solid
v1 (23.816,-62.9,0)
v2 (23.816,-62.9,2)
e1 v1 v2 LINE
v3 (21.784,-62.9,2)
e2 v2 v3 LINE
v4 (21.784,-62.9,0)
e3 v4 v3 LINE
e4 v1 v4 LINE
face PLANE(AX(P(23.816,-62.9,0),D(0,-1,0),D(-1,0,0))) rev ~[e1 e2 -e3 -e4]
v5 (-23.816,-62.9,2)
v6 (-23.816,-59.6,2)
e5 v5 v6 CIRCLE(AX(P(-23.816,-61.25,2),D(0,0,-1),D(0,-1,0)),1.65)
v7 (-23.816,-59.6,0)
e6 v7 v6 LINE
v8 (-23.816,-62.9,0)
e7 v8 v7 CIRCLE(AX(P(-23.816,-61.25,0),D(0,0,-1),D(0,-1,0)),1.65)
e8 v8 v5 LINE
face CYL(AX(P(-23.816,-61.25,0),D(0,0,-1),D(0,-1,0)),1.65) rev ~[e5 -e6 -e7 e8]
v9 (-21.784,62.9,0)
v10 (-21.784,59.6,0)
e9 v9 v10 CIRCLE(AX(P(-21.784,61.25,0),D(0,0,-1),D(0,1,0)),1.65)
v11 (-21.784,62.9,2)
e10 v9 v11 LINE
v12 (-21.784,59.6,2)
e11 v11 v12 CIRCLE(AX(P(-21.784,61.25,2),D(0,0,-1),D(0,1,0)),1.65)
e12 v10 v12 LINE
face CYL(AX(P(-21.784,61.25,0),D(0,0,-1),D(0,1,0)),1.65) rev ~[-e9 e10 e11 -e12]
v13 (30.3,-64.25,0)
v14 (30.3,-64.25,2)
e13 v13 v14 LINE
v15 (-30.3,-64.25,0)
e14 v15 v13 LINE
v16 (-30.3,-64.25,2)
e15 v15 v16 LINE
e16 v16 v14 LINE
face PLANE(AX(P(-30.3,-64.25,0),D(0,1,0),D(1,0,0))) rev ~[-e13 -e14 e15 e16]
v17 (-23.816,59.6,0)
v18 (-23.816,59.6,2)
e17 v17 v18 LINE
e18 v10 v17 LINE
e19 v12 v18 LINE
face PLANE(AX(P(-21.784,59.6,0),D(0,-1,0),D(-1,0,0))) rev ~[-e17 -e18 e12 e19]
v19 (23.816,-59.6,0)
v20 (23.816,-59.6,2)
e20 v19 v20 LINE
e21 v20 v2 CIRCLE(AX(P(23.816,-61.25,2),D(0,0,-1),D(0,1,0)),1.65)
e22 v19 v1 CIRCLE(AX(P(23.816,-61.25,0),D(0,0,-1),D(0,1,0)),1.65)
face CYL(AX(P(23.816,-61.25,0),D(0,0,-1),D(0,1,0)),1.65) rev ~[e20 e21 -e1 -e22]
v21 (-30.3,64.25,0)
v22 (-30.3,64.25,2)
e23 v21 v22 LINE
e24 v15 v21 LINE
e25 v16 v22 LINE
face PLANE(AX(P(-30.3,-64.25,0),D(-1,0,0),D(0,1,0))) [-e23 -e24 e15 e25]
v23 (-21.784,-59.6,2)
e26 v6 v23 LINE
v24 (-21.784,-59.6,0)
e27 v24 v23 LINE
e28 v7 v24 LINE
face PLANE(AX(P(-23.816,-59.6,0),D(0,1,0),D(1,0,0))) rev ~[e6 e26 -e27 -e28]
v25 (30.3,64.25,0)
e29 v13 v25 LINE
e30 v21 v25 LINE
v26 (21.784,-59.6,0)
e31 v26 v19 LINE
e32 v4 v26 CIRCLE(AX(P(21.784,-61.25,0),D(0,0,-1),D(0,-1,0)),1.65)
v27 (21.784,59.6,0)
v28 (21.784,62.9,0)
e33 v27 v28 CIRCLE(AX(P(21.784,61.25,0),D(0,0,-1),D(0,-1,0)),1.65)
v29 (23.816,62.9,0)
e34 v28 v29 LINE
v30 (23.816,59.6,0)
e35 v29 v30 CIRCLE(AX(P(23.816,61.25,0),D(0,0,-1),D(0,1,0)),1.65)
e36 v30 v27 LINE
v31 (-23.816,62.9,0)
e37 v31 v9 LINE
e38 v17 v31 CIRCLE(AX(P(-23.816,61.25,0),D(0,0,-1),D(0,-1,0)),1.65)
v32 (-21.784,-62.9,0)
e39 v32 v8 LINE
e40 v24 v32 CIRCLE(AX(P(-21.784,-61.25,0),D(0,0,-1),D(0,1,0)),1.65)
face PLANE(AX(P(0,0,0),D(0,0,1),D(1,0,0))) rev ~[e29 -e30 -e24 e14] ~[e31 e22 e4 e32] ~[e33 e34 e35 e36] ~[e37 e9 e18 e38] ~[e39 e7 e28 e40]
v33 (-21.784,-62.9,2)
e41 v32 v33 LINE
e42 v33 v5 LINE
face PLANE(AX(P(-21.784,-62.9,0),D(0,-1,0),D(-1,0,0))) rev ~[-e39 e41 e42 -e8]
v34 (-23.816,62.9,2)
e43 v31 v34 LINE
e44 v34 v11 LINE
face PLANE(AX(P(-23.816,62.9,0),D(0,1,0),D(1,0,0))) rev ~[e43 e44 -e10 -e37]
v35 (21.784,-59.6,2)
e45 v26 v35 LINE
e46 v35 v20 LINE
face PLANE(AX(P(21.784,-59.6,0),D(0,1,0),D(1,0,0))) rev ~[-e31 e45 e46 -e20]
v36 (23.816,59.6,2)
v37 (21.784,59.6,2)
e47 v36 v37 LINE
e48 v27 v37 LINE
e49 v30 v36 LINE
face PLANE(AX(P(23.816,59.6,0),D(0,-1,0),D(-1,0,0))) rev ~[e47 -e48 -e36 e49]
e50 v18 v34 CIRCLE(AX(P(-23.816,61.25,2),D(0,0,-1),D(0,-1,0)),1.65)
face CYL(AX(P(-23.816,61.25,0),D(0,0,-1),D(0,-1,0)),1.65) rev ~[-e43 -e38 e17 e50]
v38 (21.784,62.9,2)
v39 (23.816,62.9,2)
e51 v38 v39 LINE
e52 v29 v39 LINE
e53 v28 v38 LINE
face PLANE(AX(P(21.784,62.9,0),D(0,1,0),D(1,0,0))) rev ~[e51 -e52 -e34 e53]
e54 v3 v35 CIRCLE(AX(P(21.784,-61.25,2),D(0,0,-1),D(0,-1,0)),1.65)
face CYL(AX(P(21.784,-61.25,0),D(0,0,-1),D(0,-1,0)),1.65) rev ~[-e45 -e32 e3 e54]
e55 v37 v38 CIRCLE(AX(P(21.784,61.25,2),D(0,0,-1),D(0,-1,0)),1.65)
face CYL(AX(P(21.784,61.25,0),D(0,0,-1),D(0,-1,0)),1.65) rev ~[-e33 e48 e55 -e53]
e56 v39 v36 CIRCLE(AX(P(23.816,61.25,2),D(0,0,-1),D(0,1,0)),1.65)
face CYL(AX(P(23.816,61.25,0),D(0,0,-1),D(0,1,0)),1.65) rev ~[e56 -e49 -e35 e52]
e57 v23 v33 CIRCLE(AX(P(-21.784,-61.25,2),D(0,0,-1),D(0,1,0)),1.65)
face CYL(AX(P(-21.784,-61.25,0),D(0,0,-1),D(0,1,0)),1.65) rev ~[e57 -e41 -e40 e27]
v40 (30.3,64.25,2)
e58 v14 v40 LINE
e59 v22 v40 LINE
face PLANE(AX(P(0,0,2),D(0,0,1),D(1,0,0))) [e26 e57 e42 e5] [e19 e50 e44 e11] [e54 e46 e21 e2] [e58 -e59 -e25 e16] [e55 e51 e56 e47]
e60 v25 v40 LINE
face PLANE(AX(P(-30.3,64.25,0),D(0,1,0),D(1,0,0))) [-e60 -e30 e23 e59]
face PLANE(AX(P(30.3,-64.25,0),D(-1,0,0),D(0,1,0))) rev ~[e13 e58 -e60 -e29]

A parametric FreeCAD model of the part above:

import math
import FreeCAD as App
import Part
import Sketcher


def add_polygon(sketch, points):
    """Adds a closed chain of lines whose ends are joined by coincident constraints."""
    first, n = sketch.GeometryCount, len(points)
    for a, b in zip(points, points[1:] + points[:1]):
        sketch.addGeometry(Part.LineSegment(App.Vector(*a, 0), App.Vector(*b, 0)), False)
    for i in range(n):
        sketch.addConstraint(Sketcher.Constraint("Coincident", first + i, 2, first + (i + 1) % n, 1))

doc = App.newDocument("Part")
body = doc.addObject("PartDesign::Body", "Body")

# Sketch on XY plane
sketch1 = body.newObject("Sketcher::SketchObject", "Sketch")
sketch1.AttachmentSupport = (doc.getObject("XY_Plane"), [""])
sketch1.MapMode = "FlatFace"
add_polygon(sketch1, [(-30.3, 64.25), (-30.3, -64.25), (30.3, -64.25), (30.3, 64.25)])  # lines 0-3
sketch1.addGeometry(Part.ArcOfCircle(Part.Circle(App.Vector(-23.816, -61.25, 0), App.Vector(0, 0, 1), 1.65), math.radians(90), math.radians(270)), False)  # 4
sketch1.addGeometry(Part.LineSegment(App.Vector(-23.816, -59.6, 0), App.Vector(-21.784, -59.6, 0)), False)  # 5
sketch1.addGeometry(Part.ArcOfCircle(Part.Circle(App.Vector(-21.784, -61.25, 0), App.Vector(0, 0, 1), 1.65), math.radians(-90), math.radians(90)), False)  # 6
sketch1.addGeometry(Part.LineSegment(App.Vector(-21.784, -62.9, 0), App.Vector(-23.816, -62.9, 0)), False)  # 7
sketch1.addGeometry(Part.ArcOfCircle(Part.Circle(App.Vector(21.784, -61.25, 0), App.Vector(0, 0, 1), 1.65), math.radians(90), math.radians(270)), False)  # 8
sketch1.addGeometry(Part.LineSegment(App.Vector(21.784, -59.6, 0), App.Vector(23.816, -59.6, 0)), False)  # 9
sketch1.addGeometry(Part.ArcOfCircle(Part.Circle(App.Vector(23.816, -61.25, 0), App.Vector(0, 0, 1), 1.65), math.radians(-90), math.radians(90)), False)  # 10
sketch1.addGeometry(Part.LineSegment(App.Vector(23.816, -62.9, 0), App.Vector(21.784, -62.9, 0)), False)  # 11
sketch1.addGeometry(Part.ArcOfCircle(Part.Circle(App.Vector(-23.816, 61.25, 0), App.Vector(0, 0, 1), 1.65), math.radians(90), math.radians(270)), False)  # 12
sketch1.addGeometry(Part.LineSegment(App.Vector(-23.816, 62.9, 0), App.Vector(-21.784, 62.9, 0)), False)  # 13
sketch1.addGeometry(Part.ArcOfCircle(Part.Circle(App.Vector(-21.784, 61.25, 0), App.Vector(0, 0, 1), 1.65), math.radians(-90), math.radians(90)), False)  # 14
sketch1.addGeometry(Part.LineSegment(App.Vector(-21.784, 59.6, 0), App.Vector(-23.816, 59.6, 0)), False)  # 15
sketch1.addGeometry(Part.ArcOfCircle(Part.Circle(App.Vector(21.784, 61.25, 0), App.Vector(0, 0, 1), 1.65), math.radians(90), math.radians(270)), False)  # 16
sketch1.addGeometry(Part.LineSegment(App.Vector(21.784, 62.9, 0), App.Vector(23.816, 62.9, 0)), False)  # 17
sketch1.addGeometry(Part.ArcOfCircle(Part.Circle(App.Vector(23.816, 61.25, 0), App.Vector(0, 0, 1), 1.65), math.radians(-90), math.radians(90)), False)  # 18
sketch1.addGeometry(Part.LineSegment(App.Vector(23.816, 59.6, 0), App.Vector(21.784, 59.6, 0)), False)  # 19
sketch1.addConstraint(Sketcher.Constraint("Tangent", 4, 1, 5, 1))
sketch1.addConstraint(Sketcher.Constraint("Tangent", 5, 2, 6, 2))
sketch1.addConstraint(Sketcher.Constraint("Tangent", 6, 1, 7, 1))
sketch1.addConstraint(Sketcher.Constraint("Tangent", 7, 2, 4, 2))
sketch1.addConstraint(Sketcher.Constraint("Tangent", 8, 1, 9, 1))
sketch1.addConstraint(Sketcher.Constraint("Tangent", 9, 2, 10, 2))
sketch1.addConstraint(Sketcher.Constraint("Tangent", 10, 1, 11, 1))
sketch1.addConstraint(Sketcher.Constraint("Tangent", 11, 2, 8, 2))
sketch1.addConstraint(Sketcher.Constraint("Tangent", 12, 1, 13, 1))
sketch1.addConstraint(Sketcher.Constraint("Tangent", 13, 2, 14, 2))
sketch1.addConstraint(Sketcher.Constraint("Tangent", 14, 1, 15, 1))
sketch1.addConstraint(Sketcher.Constraint("Tangent", 15, 2, 12, 2))
sketch1.addConstraint(Sketcher.Constraint("Tangent", 16, 1, 17, 1))
sketch1.addConstraint(Sketcher.Constraint("Tangent", 17, 2, 18, 2))
sketch1.addConstraint(Sketcher.Constraint("Tangent", 18, 1, 19, 1))
sketch1.addConstraint(Sketcher.Constraint("Tangent", 19, 2, 16, 2))
sketch1.addConstraint(Sketcher.Constraint("Vertical", 0))
sketch1.addConstraint(Sketcher.Constraint("Horizontal", 1))
sketch1.addConstraint(Sketcher.Constraint("Vertical", 2))
sketch1.addConstraint(Sketcher.Constraint("Horizontal", 3))
sketch1.addConstraint(Sketcher.Constraint("Horizontal", 5))
sketch1.addConstraint(Sketcher.Constraint("Horizontal", 7))
sketch1.addConstraint(Sketcher.Constraint("Horizontal", 9))
sketch1.addConstraint(Sketcher.Constraint("Horizontal", 11))
sketch1.addConstraint(Sketcher.Constraint("Horizontal", 13))
sketch1.addConstraint(Sketcher.Constraint("Horizontal", 15))
sketch1.addConstraint(Sketcher.Constraint("Horizontal", 17))
sketch1.addConstraint(Sketcher.Constraint("Horizontal", 19))
sketch1.addConstraint(Sketcher.Constraint("Equal", 6, 8))
sketch1.addConstraint(Sketcher.Constraint("Equal", 10, 12))
sketch1.addConstraint(Sketcher.Constraint("Equal", 14, 16))
sketch1.addConstraint(Sketcher.Constraint("Symmetric", 10, 3, 12, 3, -1, 1))
sketch1.addConstraint(Sketcher.Constraint("Symmetric", 6, 3, 16, 3, -1, 1))
sketch1.addConstraint(Sketcher.Constraint("Symmetric", 0, 2, 2, 2, -1, 1))
sketch1.addConstraint(Sketcher.Constraint("Symmetric", 6, 3, 8, 3, -2))
sketch1.addConstraint(Sketcher.Constraint("Vertical", 4, 3, 12, 3))
sketch1.addConstraint(Sketcher.Constraint("Vertical", 6, 3, 14, 3))
sketch1.addConstraint(Sketcher.Constraint("Vertical", 10, 3, 18, 3))
sketch1.addConstraint(Sketcher.Constraint("Radius", 4, 1.65))
sketch1.addConstraint(Sketcher.Constraint("DistanceX", 1, 1, 1, 2, 60.6))
sketch1.addConstraint(Sketcher.Constraint("DistanceY", 0, 2, 0, 1, 128.5))
sketch1.addConstraint(Sketcher.Constraint("DistanceY", 0, 2, 4, 3, 3.0))
sketch1.addConstraint(Sketcher.Constraint("DistanceX", 4, 3, 8, 3, 45.6))
sketch1.addConstraint(Sketcher.Constraint("DistanceX", 5, 1, 5, 2, 2.032))
pad1 = body.newObject("PartDesign::Pad", "Pad")
pad1.Profile = sketch1
pad1.Length = 2

doc.recompute()
